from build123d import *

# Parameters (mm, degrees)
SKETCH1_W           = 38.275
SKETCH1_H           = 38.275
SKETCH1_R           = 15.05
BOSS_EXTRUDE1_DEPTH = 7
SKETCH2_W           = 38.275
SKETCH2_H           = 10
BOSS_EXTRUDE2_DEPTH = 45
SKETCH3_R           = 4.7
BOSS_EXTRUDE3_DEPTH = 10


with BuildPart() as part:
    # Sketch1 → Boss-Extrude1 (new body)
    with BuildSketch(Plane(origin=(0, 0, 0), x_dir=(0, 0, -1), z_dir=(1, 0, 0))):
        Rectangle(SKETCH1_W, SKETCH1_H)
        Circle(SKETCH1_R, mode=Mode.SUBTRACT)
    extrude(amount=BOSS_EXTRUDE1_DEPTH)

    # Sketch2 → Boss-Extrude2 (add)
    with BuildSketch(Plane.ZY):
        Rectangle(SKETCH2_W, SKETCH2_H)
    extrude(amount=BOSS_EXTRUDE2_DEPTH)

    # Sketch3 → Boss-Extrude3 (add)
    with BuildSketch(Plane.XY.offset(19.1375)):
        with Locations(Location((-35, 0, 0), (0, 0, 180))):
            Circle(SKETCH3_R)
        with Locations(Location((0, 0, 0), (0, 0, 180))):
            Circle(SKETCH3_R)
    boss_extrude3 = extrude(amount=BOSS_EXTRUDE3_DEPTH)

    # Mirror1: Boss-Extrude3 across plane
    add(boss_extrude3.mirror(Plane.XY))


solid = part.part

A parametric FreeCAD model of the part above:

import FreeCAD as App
import Part
import Sketcher


def add_polygon(sketch, points):
    """Adds a closed chain of lines whose ends are joined by coincident constraints."""
    first, n = sketch.GeometryCount, len(points)
    for a, b in zip(points, points[1:] + points[:1]):
        sketch.addGeometry(Part.LineSegment(App.Vector(*a, 0), App.Vector(*b, 0)), False)
    for i in range(n):
        sketch.addConstraint(Sketcher.Constraint("Coincident", first + i, 2, first + (i + 1) % n, 1))

doc = App.newDocument("Part")
params = doc.addObject("Spreadsheet::Sheet", "Params")
for row, (alias, value) in enumerate([
    ("sketch1_diameter", "30.1 mm"),
    ("pad1_length", "7 mm"),
    ("sketch2_width", "10 mm"),
    ("pad2_length", "45 mm"),
    ("sketch3_diameter", "9.4 mm"),
    ("pad3_length", "10 mm"),
], start=1):
    params.set(f"A{row}", alias)
    params.set(f"B{row}", "=" + value)
    params.setAlias(f"B{row}", alias)

body = doc.addObject("PartDesign::Body", "Body")

# Sketch on YZ plane
sketch1 = body.newObject("Sketcher::SketchObject", "Sketch")
sketch1.AttachmentSupport = (doc.getObject("YZ_Plane"), [""])
sketch1.MapMode = "FlatFace"
add_polygon(sketch1, [(19, 19), (-19, 19), (-19, -19), (19, -19)])  # lines 0-3
sketch1.addGeometry(Part.Circle(App.Vector(0, 0, 0), App.Vector(0, 0, 1), 15), False)  # 4
sketch1.addConstraint(Sketcher.Constraint("Horizontal", 0))
sketch1.addConstraint(Sketcher.Constraint("Vertical", 1))
sketch1.addConstraint(Sketcher.Constraint("Horizontal", 2))
sketch1.addConstraint(Sketcher.Constraint("Vertical", 3))
sketch1.addConstraint(Sketcher.Constraint("Coincident", 4, 3, -1, 1))
sketch1.addConstraint(Sketcher.Constraint("Symmetric", 0, 2, 2, 2, -1, 1))
sketch1.addConstraint(Sketcher.Constraint("Equal", 2, 1))
sketch1.addConstraint(Sketcher.Constraint("Diameter", 4, 30.1))
sketch1.addConstraint(Sketcher.Constraint("DistanceX", 0, 2, 0, 1, 38.275))
sketch1.setExpression("Constraints[11]", "Params.sketch1_diameter")
pad1 = body.newObject("PartDesign::Pad", "Pad")
pad1.Profile = sketch1
pad1.setExpression("Length", "Params.pad1_length")

# Sketch on YZ plane
sketch2 = body.newObject("Sketcher::SketchObject", "Sketch001")
sketch2.AttachmentSupport = (doc.getObject("YZ_Plane"), [""])
sketch2.MapMode = "FlatFace"
add_polygon(sketch2, [(5, -19), (-5, -19), (-5, 19), (5, 19)])  # lines 0-3
sketch2.addConstraint(Sketcher.Constraint("Horizontal", 0))
sketch2.addConstraint(Sketcher.Constraint("Vertical", 1))
sketch2.addConstraint(Sketcher.Constraint("Horizontal", 2))
sketch2.addConstraint(Sketcher.Constraint("Vertical", 3))
sketch2.addConstraint(Sketcher.Constraint("Symmetric", 0, 2, 2, 2, -1, 1))
sketch2.addConstraint(Sketcher.Constraint("DistanceX", 0, 2, 0, 1, 10.0))
sketch2.addConstraint(Sketcher.Constraint("DistanceY", 1, 1, 1, 2, 38.275))
sketch2.setExpression("Constraints[9]", "Params.sketch2_width")
pad2 = body.newObject("PartDesign::Pad", "Pad001")
pad2.Profile = sketch2
pad2.setExpression("Length", "Params.pad2_length")
pad2.Reversed = True

# Sketch on XY plane
sketch3 = body.newObject("Sketcher::SketchObject", "Sketch002")
sketch3.AttachmentSupport = (doc.getObject("XY_Plane"), [""])
sketch3.MapMode = "FlatFace"
sketch3.AttachmentOffset = App.Placement(App.Vector(0, 0, 19.1375), App.Rotation())
sketch3.addGeometry(Part.Circle(App.Vector(-35, 0, 0), App.Vector(0, 0, 1), 4.7), False)
sketch3.addGeometry(Part.Circle(App.Vector(0, 0, 0), App.Vector(0, 0, 1), 4.7), False)
sketch3.addConstraint(Sketcher.Constraint("Coincident", 1, 3, -1, 1))
sketch3.addConstraint(Sketcher.Constraint("Equal", 0, 1))
sketch3.addConstraint(Sketcher.Constraint("PointOnObject", 0, 3, -1))
sketch3.addConstraint(Sketcher.Constraint("Diameter", 0, 9.4))
sketch3.addConstraint(Sketcher.Constraint("DistanceX", 0, 3, -1, 1, 35.0))
sketch3.setExpression("Constraints[3]", "Params.sketch3_diameter")
pad3 = body.newObject("PartDesign::Pad", "Pad002")
pad3.Profile = sketch3
pad3.setExpression("Length", "Params.pad3_length")
doc.recompute()

mirrored = body.newObject("PartDesign::Mirrored", "Mirrored")
mirrored.Originals = [pad3]
mirrored.MirrorPlane = (doc.getObject("XY_Plane"), [""])
body.Tip = mirrored

doc.recompute()
